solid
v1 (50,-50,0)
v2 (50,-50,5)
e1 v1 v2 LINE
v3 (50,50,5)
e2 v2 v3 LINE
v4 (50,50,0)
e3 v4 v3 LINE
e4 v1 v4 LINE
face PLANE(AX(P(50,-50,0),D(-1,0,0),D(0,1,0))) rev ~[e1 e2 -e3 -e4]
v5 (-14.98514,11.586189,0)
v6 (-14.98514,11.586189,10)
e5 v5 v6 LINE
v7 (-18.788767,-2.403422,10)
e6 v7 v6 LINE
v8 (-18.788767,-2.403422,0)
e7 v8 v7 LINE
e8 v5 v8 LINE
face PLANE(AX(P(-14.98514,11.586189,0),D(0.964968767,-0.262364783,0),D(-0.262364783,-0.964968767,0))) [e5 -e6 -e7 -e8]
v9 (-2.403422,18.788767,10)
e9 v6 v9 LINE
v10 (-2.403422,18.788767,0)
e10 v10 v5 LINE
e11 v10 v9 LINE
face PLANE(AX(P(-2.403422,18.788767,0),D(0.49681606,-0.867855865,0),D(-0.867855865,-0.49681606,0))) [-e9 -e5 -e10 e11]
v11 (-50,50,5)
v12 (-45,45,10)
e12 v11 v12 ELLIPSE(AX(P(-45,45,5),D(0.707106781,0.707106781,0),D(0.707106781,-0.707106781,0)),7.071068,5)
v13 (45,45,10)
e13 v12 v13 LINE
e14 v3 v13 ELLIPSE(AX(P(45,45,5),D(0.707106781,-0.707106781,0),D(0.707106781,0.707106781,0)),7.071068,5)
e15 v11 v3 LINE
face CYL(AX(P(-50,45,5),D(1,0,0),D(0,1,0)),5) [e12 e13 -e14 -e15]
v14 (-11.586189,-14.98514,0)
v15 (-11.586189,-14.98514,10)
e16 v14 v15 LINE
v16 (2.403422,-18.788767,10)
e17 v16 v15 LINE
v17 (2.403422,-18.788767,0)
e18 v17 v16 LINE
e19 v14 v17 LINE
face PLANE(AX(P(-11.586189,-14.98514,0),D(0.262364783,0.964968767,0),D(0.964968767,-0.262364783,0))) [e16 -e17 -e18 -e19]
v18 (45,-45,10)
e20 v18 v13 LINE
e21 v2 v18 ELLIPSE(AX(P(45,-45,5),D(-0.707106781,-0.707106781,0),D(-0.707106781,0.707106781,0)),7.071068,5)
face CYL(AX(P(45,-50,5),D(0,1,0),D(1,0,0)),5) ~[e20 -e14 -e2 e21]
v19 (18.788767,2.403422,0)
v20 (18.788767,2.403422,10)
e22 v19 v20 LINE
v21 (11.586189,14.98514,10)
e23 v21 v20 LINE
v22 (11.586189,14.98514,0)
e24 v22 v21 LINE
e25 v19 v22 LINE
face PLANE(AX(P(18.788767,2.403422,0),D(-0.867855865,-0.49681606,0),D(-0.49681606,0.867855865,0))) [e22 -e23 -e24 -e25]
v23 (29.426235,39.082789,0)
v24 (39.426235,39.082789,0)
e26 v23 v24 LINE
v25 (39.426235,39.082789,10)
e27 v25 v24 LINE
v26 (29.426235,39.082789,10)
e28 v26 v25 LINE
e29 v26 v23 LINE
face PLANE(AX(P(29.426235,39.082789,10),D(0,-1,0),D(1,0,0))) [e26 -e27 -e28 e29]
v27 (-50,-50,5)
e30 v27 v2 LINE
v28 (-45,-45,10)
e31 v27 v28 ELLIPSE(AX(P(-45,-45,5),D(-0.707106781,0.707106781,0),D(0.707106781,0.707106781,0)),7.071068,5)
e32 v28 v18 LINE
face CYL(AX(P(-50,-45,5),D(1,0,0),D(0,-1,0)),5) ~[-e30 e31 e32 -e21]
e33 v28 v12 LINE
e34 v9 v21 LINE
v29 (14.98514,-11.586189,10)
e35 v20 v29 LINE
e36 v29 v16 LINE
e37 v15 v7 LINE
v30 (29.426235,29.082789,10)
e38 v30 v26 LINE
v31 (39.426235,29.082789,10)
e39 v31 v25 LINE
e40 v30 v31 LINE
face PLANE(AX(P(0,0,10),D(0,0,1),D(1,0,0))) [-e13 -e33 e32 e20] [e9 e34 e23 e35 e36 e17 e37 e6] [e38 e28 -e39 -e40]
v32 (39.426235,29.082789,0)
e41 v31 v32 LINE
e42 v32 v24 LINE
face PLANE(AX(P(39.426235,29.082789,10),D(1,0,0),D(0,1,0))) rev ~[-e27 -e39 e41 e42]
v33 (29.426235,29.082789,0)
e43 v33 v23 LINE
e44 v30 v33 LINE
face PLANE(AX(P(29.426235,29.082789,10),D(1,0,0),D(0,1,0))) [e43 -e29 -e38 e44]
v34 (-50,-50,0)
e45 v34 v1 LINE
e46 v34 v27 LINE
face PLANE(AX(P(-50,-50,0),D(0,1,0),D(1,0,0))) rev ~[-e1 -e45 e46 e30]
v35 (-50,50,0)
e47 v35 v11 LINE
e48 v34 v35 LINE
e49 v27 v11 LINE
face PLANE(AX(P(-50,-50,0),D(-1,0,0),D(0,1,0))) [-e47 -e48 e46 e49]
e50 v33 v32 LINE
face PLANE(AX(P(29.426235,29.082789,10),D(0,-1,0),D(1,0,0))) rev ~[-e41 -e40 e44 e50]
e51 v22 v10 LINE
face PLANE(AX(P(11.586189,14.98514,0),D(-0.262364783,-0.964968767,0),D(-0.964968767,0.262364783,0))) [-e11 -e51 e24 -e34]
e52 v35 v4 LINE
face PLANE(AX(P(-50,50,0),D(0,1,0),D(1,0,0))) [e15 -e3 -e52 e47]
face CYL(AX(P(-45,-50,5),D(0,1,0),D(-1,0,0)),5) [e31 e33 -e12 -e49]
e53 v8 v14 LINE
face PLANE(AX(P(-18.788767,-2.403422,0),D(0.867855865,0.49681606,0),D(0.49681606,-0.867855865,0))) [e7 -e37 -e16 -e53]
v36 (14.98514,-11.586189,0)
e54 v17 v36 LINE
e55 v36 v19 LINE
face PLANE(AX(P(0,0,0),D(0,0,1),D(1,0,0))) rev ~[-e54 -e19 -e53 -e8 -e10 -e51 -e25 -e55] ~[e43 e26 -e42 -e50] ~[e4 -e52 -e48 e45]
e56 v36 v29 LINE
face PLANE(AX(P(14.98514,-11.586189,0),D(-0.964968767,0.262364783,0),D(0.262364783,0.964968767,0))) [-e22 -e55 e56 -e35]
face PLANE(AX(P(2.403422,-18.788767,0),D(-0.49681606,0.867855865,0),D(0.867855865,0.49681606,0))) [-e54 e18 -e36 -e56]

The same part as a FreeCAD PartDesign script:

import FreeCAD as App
import Part
import Sketcher
from FreeCAD import Vector


def edges_at(feature, points):
    """Names of the edges that pass closest to the given points."""
    edges = feature.Shape.Edges
    near = lambda p: min(range(len(edges)), key=lambda i: edges[i].distToShape(Part.Vertex(*p))[0])
    return sorted({f"Edge{near(p) + 1}" for p in points})


def add_polygon(sketch, points):
    """Adds a closed chain of lines whose ends are joined by coincident constraints."""
    first, n = sketch.GeometryCount, len(points)
    for a, b in zip(points, points[1:] + points[:1]):
        sketch.addGeometry(Part.LineSegment(App.Vector(*a, 0), App.Vector(*b, 0)), False)
    for i in range(n):
        sketch.addConstraint(Sketcher.Constraint("Coincident", first + i, 2, first + (i + 1) % n, 1))

doc = App.newDocument("Part")
params = doc.addObject("Spreadsheet::Sheet", "Params")
for row, (alias, value) in enumerate([
    ("sketch1_width", "100 mm"),
    ("pad1_length", "10 mm"),
    ("fillet_radius", "5 mm"),
    ("pocket1_length", "106.8 mm"),
    ("sketch3_width", "10 mm"),
    ("pocket2_length", "90.6 mm"),
], start=1):
    params.set(f"A{row}", alias)
    params.set(f"B{row}", "=" + value)
    params.setAlias(f"B{row}", alias)

body = doc.addObject("PartDesign::Body", "Body")

sketch1 = body.newObject("Sketcher::SketchObject", "Sketch")
sketch1.AttachmentSupport = (doc.getObject("XY_Plane"), [""])
sketch1.MapMode = "FlatFace"
add_polygon(sketch1, [(-50, 50), (-50, -50), (50, -50), (50, 50)])
sketch1.addConstraint([
    Sketcher.Constraint("Vertical", 0),
    Sketcher.Constraint("Horizontal", 1),
    Sketcher.Constraint("Vertical", 2),
    Sketcher.Constraint("Horizontal", 3),
    Sketcher.Constraint("Symmetric", 0, 2, 2, 2, -1, 1),
    Sketcher.Constraint("Equal", 3, 0),
    Sketcher.Constraint("DistanceX", 1, 1, 1, 2, 100.0),
])
sketch1.setExpression("Constraints[10]", "Params.sketch1_width")
pad1 = body.newObject("PartDesign::Pad", "Pad")
pad1.Profile = sketch1
pad1.setExpression("Length", "Params.pad1_length")
doc.recompute()

fillet = body.newObject("PartDesign::Fillet", "Fillet")
fillet.Base = (pad1, edges_at(pad1, [
    (50, 0, 10),
    (0, 50, 10),
    (-50, 0, 10),
    (0, -50, 10),
]))
fillet.setExpression("Radius", "Params.fillet_radius")

sketch2 = body.newObject("Sketcher::SketchObject", "Sketch001")
sketch2.AttachmentSupport = (doc.getObject("XY_Plane"), [""])
sketch2.MapMode = "FlatFace"
add_polygon(sketch2, [(18.788767, 2.403422), (11.586189, 14.98514), (-2.403422, 18.788767), (-14.98514, 11.586189), (-18.788767, -2.403422), (-11.586189, -14.98514), (2.403422, -18.788767), (14.98514, -11.586189)])
sketch2.addConstraint([
    Sketcher.Constraint("Symmetric", 0, 2, 4, 2, -1, 1),
    Sketcher.Constraint("Symmetric", 1, 2, 5, 2, -1, 1),
    Sketcher.Constraint("Symmetric", 2, 2, 6, 2, -1, 1),
    Sketcher.Constraint("Symmetric", 3, 2, 7, 2, -1, 1),
    Sketcher.Constraint("Perpendicular", 0, 2),
    Sketcher.Constraint("Perpendicular", 1, 3),
    Sketcher.Constraint("Equal", 0, 1),
    Sketcher.Constraint("Equal", 1, 2),
    Sketcher.Constraint("Equal", 2, 3),
    Sketcher.Constraint("DistanceX", -1, 1, 0, 2, 11.586189),
    Sketcher.Constraint("DistanceY", -1, 1, 0, 2, 14.98514),
    Sketcher.Constraint("DistanceX", 1, 2, -1, 1, 2.403422),
])
pocket1 = body.newObject("PartDesign::Pocket", "Pocket")
pocket1.Profile = sketch2
pocket1.setExpression("Length", "Params.pocket1_length")
pocket1.Reversed = True

sketch3 = body.newObject("Sketcher::SketchObject", "Sketch002")
sketch3.AttachmentSupport = (doc.getObject("XY_Plane"), [""])
sketch3.MapMode = "FlatFace"
sketch3.AttachmentOffset = App.Placement(Vector(0, 0, 10), App.Rotation())
add_polygon(sketch3, [(29.426235, 39.082789), (29.426235, 29.082789), (39.426235, 29.082789), (39.426235, 39.082789)])
sketch3.addConstraint([
    Sketcher.Constraint("Vertical", 0),
    Sketcher.Constraint("Horizontal", 1),
    Sketcher.Constraint("Vertical", 2),
    Sketcher.Constraint("Horizontal", 3),
    Sketcher.Constraint("Equal", 3, 0),
    Sketcher.Constraint("DistanceX", 1, 1, 1, 2, 10.0),
    Sketcher.Constraint("DistanceY", -1, 1, 0, 2, 29.082789),
    Sketcher.Constraint("DistanceX", -1, 1, 0, 2, 29.426235),
])
sketch3.setExpression("Constraints[9]", "Params.sketch3_width")
pocket2 = body.newObject("PartDesign::Pocket", "Pocket001")
pocket2.Profile = sketch3
pocket2.setExpression("Length", "Params.pocket2_length")

doc.recompute()
